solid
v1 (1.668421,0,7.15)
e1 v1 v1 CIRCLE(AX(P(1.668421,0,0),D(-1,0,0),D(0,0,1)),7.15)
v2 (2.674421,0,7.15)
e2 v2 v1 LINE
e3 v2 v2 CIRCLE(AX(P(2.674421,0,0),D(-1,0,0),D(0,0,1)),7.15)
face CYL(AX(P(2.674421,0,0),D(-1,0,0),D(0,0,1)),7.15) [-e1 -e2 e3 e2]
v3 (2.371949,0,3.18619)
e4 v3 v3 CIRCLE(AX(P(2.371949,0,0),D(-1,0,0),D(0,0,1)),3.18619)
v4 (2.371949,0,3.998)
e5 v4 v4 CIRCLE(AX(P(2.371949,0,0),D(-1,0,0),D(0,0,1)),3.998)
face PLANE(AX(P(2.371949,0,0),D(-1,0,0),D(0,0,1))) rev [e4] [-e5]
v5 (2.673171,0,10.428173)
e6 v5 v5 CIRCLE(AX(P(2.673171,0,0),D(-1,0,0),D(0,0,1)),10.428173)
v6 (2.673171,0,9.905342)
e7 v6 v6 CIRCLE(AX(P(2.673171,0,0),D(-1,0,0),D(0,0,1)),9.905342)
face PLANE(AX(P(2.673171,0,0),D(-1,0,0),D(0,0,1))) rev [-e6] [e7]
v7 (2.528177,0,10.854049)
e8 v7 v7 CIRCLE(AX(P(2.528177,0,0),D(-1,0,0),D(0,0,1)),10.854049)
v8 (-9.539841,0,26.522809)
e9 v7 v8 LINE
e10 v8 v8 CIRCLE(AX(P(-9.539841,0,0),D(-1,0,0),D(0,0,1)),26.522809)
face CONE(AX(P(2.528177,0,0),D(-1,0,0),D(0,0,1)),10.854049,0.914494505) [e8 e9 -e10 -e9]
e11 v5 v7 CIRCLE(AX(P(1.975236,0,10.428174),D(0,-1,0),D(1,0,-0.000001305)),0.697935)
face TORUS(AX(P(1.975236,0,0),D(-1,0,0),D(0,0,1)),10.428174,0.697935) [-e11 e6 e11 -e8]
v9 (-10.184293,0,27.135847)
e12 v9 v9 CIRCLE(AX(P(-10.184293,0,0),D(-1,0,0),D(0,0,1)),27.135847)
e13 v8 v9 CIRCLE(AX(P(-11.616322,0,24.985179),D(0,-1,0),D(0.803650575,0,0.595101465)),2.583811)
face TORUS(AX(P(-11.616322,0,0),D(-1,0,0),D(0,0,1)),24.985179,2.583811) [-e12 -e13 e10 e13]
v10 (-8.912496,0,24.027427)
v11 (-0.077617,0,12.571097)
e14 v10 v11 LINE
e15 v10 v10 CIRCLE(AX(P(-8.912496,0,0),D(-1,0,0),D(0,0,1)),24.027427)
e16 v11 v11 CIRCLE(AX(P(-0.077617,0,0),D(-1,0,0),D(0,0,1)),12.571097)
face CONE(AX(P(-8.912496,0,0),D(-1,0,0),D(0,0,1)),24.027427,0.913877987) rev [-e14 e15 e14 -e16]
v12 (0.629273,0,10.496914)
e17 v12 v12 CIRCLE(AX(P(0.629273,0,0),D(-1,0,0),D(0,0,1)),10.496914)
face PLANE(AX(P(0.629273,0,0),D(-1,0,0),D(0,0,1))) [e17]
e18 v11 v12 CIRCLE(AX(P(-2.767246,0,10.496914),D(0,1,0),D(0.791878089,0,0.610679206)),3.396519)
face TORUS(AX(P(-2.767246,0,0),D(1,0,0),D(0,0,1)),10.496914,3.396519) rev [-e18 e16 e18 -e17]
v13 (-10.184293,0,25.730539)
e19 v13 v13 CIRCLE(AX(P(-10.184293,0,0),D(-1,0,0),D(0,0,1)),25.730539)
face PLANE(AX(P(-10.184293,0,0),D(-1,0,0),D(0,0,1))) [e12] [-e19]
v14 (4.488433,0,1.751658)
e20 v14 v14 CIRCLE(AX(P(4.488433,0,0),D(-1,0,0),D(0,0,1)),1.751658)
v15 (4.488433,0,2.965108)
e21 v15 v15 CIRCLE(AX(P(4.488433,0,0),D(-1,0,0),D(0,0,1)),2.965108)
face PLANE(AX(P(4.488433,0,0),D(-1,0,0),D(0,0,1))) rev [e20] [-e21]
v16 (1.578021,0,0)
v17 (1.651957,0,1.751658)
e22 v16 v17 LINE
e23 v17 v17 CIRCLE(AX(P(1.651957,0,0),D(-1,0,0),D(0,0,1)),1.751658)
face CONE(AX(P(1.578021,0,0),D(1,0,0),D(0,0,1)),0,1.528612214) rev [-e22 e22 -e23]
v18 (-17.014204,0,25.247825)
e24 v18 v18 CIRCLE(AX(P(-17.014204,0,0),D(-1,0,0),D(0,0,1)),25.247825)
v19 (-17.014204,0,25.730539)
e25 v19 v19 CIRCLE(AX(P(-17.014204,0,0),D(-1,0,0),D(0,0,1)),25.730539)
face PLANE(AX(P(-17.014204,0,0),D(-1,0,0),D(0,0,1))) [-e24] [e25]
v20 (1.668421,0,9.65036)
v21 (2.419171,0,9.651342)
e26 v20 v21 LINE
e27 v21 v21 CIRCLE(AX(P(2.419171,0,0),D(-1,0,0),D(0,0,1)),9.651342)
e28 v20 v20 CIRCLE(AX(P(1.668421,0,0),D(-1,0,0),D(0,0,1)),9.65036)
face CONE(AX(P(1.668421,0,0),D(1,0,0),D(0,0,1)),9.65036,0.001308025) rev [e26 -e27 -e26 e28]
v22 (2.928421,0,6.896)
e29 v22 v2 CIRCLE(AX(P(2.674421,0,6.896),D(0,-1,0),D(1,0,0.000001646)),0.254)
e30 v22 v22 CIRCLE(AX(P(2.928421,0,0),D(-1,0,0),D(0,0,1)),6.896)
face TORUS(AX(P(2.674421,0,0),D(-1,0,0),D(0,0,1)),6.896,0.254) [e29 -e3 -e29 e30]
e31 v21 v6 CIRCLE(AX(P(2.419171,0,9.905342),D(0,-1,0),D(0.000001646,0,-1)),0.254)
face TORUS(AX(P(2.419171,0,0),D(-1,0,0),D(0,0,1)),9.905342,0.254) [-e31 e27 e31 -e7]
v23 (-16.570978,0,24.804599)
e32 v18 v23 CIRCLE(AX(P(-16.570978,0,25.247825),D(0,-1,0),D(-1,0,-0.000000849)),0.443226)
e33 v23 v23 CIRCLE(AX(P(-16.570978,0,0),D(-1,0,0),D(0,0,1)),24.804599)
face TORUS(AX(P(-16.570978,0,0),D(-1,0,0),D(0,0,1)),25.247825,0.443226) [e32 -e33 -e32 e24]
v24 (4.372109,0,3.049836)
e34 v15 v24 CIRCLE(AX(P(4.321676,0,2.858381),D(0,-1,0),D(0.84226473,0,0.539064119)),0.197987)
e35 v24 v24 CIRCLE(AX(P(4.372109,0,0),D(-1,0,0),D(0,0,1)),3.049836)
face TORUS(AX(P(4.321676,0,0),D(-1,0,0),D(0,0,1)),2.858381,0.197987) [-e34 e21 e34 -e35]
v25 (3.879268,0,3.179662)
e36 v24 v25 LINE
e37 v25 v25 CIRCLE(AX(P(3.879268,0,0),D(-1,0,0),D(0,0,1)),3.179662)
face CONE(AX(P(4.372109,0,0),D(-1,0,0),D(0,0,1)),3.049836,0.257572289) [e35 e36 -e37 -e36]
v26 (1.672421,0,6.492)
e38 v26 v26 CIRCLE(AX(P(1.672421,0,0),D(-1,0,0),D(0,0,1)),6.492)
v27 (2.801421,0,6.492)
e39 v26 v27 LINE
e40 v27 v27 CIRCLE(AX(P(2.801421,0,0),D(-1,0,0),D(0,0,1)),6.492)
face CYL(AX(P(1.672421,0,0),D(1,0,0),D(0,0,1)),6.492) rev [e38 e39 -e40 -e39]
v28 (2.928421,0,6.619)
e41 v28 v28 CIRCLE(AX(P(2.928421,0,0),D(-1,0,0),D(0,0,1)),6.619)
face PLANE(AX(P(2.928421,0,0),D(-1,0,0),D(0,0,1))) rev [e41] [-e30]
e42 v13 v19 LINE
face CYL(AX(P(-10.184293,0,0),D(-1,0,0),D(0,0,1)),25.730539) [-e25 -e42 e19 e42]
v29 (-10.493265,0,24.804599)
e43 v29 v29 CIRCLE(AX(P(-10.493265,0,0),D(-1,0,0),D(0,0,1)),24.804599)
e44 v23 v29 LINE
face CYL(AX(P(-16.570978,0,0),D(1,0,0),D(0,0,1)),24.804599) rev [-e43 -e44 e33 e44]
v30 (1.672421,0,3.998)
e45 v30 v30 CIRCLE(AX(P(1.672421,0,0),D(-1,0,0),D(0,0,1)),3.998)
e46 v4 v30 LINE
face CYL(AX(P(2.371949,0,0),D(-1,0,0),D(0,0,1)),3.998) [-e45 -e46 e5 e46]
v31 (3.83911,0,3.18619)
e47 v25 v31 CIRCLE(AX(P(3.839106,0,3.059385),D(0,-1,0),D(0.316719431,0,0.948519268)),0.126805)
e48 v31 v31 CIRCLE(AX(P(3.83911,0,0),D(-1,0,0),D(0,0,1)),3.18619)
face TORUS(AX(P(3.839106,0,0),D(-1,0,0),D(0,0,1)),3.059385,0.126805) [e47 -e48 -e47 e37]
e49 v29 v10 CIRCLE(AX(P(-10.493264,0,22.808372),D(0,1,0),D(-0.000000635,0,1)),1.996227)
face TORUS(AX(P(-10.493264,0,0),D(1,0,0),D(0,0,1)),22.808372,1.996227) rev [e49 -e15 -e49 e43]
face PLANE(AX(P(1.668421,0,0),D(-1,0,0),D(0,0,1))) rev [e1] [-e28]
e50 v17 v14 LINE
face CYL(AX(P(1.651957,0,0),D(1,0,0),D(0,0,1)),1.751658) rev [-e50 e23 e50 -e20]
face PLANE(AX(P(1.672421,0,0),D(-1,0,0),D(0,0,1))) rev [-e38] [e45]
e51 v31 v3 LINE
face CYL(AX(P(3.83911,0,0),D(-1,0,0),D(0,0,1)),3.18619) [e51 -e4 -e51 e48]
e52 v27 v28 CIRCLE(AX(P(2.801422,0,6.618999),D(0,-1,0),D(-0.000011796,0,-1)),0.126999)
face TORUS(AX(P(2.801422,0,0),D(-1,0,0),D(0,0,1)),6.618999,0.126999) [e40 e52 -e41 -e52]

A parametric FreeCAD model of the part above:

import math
import FreeCAD as App
import Part
import Sketcher
Q = App.Units.Quantity

doc = App.newDocument("Part")
body = doc.addObject("PartDesign::Body", "Body")

sketch1 = body.newObject("Sketcher::SketchObject", "Sketch")
sketch1.AttachmentSupport = (doc.getObject("XZ_Plane"), [""])
sketch1.MapMode = "FlatFace"
sketch1.addGeometry([
    Part.LineSegment(App.Vector(1.668, 9.65, 0), App.Vector(2.419, 9.651, 0)),
    Part.ArcOfCircle(Part.Circle(App.Vector(2.419, 9.905, 0), App.Vector(0, 0, 1), 0.254), math.radians(-90), math.radians(0)),
    Part.LineSegment(App.Vector(2.673, 9.905, 0), App.Vector(2.673, 10.428, 0)),
    Part.ArcOfCircle(Part.Circle(App.Vector(1.975, 10.428, 0), App.Vector(0, 0, 1), 0.698), math.radians(0), math.radians(38)),
    Part.LineSegment(App.Vector(2.528, 10.854, 0), App.Vector(-9.54, 26.523, 0)),
    Part.ArcOfCircle(Part.Circle(App.Vector(-11.616, 24.985, 0), App.Vector(0, 0, 1), 2.584), math.radians(36.52), math.radians(56.34)),
    Part.LineSegment(App.Vector(-10.184, 27.136, 0), App.Vector(-10.184, 25.731, 0)),
    Part.LineSegment(App.Vector(-10.184, 25.731, 0), App.Vector(-17.014, 25.731, 0)),
    Part.LineSegment(App.Vector(-17.014, 25.731, 0), App.Vector(-17.014, 25.248, 0)),
    Part.ArcOfCircle(Part.Circle(App.Vector(-16.571, 25.248, 0), App.Vector(0, 0, 1), 0.443), math.radians(-180), math.radians(-90)),
    Part.LineSegment(App.Vector(-16.571, 24.805, 0), App.Vector(-10.493, 24.805, 0)),
    Part.ArcOfCircle(Part.Circle(App.Vector(-10.493, 22.808, 0), App.Vector(0, 0, 1), 1.996), math.radians(38), math.radians(90)),
    Part.LineSegment(App.Vector(-8.912, 24.027, 0), App.Vector(-0.078, 12.571, 0)),
    Part.ArcOfCircle(Part.Circle(App.Vector(-2.767, 10.497, 0), App.Vector(0, 0, 1), 3.397), math.radians(0), math.radians(38)),
    Part.LineSegment(App.Vector(0.629, 10.497, 0), App.Vector(0.629, 0, 0)),
    Part.LineSegment(App.Vector(0.629, 0, 0), App.Vector(1.578, 0, 0)),
    Part.LineSegment(App.Vector(1.578, 0, 0), App.Vector(1.652, 1.752, 0)),
    Part.LineSegment(App.Vector(1.652, 1.752, 0), App.Vector(4.488, 1.752, 0)),
    Part.LineSegment(App.Vector(4.488, 1.752, 0), App.Vector(4.488, 2.965, 0)),
    Part.ArcOfCircle(Part.Circle(App.Vector(4.322, 2.858, 0), App.Vector(0, 0, 1), 0.198), math.radians(33), math.radians(75)),
    Part.LineSegment(App.Vector(4.372, 3.05, 0), App.Vector(3.879, 3.18, 0)),
    Part.ArcOfCircle(Part.Circle(App.Vector(3.839, 3.059, 0), App.Vector(0, 0, 1), 0.127), math.radians(71.54), math.radians(90)),
    Part.LineSegment(App.Vector(3.839, 3.186, 0), App.Vector(2.372, 3.186, 0)),
    Part.LineSegment(App.Vector(2.372, 3.186, 0), App.Vector(2.372, 3.998, 0)),
    Part.LineSegment(App.Vector(2.372, 3.998, 0), App.Vector(1.672, 3.998, 0)),
    Part.LineSegment(App.Vector(1.672, 3.998, 0), App.Vector(1.672, 6.492, 0)),
    Part.LineSegment(App.Vector(1.672, 6.492, 0), App.Vector(2.801, 6.492, 0)),
    Part.ArcOfCircle(Part.Circle(App.Vector(2.801, 6.619, 0), App.Vector(0, 0, 1), 0.127), math.radians(-90), math.radians(0)),
    Part.LineSegment(App.Vector(2.928, 6.619, 0), App.Vector(2.928, 6.896, 0)),
    Part.ArcOfCircle(Part.Circle(App.Vector(2.674, 6.896, 0), App.Vector(0, 0, 1), 0.254), math.radians(0), math.radians(90)),
    Part.LineSegment(App.Vector(2.674, 7.15, 0), App.Vector(1.668, 7.15, 0)),
    Part.LineSegment(App.Vector(1.668, 7.15, 0), App.Vector(1.668, 9.65, 0)),
], False)
sketch1.addConstraint([
    Sketcher.Constraint("Coincident", 0, 2, 1, 1),
    Sketcher.Constraint("Tangent", 1, 2, 2, 1),
    Sketcher.Constraint("Tangent", 2, 2, 3, 1),
    Sketcher.Constraint("Coincident", 3, 2, 4, 1),
    Sketcher.Constraint("Coincident", 4, 2, 5, 1),
    Sketcher.Constraint("Coincident", 5, 2, 6, 1),
    Sketcher.Constraint("Coincident", 6, 2, 7, 1),
    Sketcher.Constraint("Coincident", 7, 2, 8, 1),
    Sketcher.Constraint("Tangent", 8, 2, 9, 1),
    Sketcher.Constraint("Tangent", 9, 2, 10, 1),
    Sketcher.Constraint("Tangent", 10, 2, 11, 2),
    Sketcher.Constraint("Tangent", 11, 1, 12, 1),
    Sketcher.Constraint("Tangent", 12, 2, 13, 2),
    Sketcher.Constraint("Tangent", 13, 1, 14, 1),
    Sketcher.Constraint("Coincident", 14, 2, 15, 1),
    Sketcher.Constraint("Coincident", 15, 2, 16, 1),
    Sketcher.Constraint("Coincident", 16, 2, 17, 1),
    Sketcher.Constraint("Coincident", 17, 2, 18, 1),
    Sketcher.Constraint("Coincident", 18, 2, 19, 1),
    Sketcher.Constraint("Coincident", 19, 2, 20, 1),
    Sketcher.Constraint("Coincident", 20, 2, 21, 1),
    Sketcher.Constraint("Coincident", 21, 2, 22, 1),
    Sketcher.Constraint("Coincident", 22, 2, 23, 1),
    Sketcher.Constraint("Coincident", 23, 2, 24, 1),
    Sketcher.Constraint("Coincident", 24, 2, 25, 1),
    Sketcher.Constraint("Coincident", 25, 2, 26, 1),
    Sketcher.Constraint("Coincident", 26, 2, 27, 1),
    Sketcher.Constraint("Coincident", 27, 2, 28, 1),
    Sketcher.Constraint("Tangent", 28, 2, 29, 1),
    Sketcher.Constraint("Tangent", 29, 2, 30, 1),
    Sketcher.Constraint("Coincident", 30, 2, 31, 1),
    Sketcher.Constraint("Coincident", 31, 2, 0, 1),
    Sketcher.Constraint("Vertical", 2),
    Sketcher.Constraint("Vertical", 6),
    Sketcher.Constraint("Horizontal", 7),
    Sketcher.Constraint("Vertical", 8),
    Sketcher.Constraint("Horizontal", 10),
    Sketcher.Constraint("Vertical", 14),
    Sketcher.Constraint("Horizontal", 15),
    Sketcher.Constraint("Horizontal", 17),
    Sketcher.Constraint("Vertical", 18),
    Sketcher.Constraint("Horizontal", 22),
    Sketcher.Constraint("Vertical", 23),
    Sketcher.Constraint("Horizontal", 24),
    Sketcher.Constraint("Vertical", 25),
    Sketcher.Constraint("Horizontal", 26),
    Sketcher.Constraint("Vertical", 28),
    Sketcher.Constraint("Horizontal", 30),
    Sketcher.Constraint("Vertical", 31),
    Sketcher.Constraint("Equal", 1, 29),
    Sketcher.Constraint("PointOnObject", 14, 2, -1),
    Sketcher.Constraint("Vertical", 1, 3, 0, 2),
    Sketcher.Constraint("Vertical", 27, 3, 26, 2),
    Sketcher.Constraint("Radius", 1, Q("0.01 in")),
    Sketcher.Constraint("Radius", 27, Q("0.0049999 in")),
    Sketcher.Constraint("Radius", 5, 2.583811),
    Sketcher.Constraint("Radius", 13, 3.396519),
    Sketcher.Constraint("DistanceY", 26, 2, 27, 2, Q("0.005 in")),
    Sketcher.Constraint("DistanceX", 26, 1, 26, 2, 1.129),
    Sketcher.Constraint("DistanceX", 30, 2, 30, 1, 1.006),
    Sketcher.Constraint("DistanceY", 25, 1, 25, 2, 2.494),
    Sketcher.Constraint("DistanceY", 28, 1, 28, 2, 0.277),
    Sketcher.Constraint("Radius", 3, 0.697935),
    Sketcher.Constraint("Radius", 9, 0.443226),
    Sketcher.Constraint("Radius", 11, 1.996227),
    Sketcher.Constraint("Radius", 19, 0.197987),
    Sketcher.Constraint("Radius", 21, 0.126805),
    Sketcher.Constraint("DistanceX", 7, 2, 7, 1, 6.829911),
    Sketcher.Constraint("DistanceX", 22, 2, 22, 1, 1.467161),
    Sketcher.Constraint("DistanceY", 2, 1, 2, 2, 0.522831),
    Sketcher.Constraint("DistanceY", 18, 1, 18, 2, 1.21345),
    Sketcher.Constraint("DistanceY", 23, 1, 23, 2, 0.81181),
    Sketcher.Constraint("DistanceY", 31, 1, 31, 2, 2.50036),
    Sketcher.Constraint("DistanceY", -1, 1, 27, 3, 6.618999),
    Sketcher.Constraint("DistanceY", -1, 1, 9, 2, 24.804599),
    Sketcher.Constraint("DistanceX", 11, 3, 3, 3, 12.468499),
    Sketcher.Constraint("DistanceY", 3, 3, 11, 3, 12.380198),
    Sketcher.Constraint("DistanceY", 19, 3, 5, 3, 22.126799),
    Sketcher.Constraint("DistanceX", 13, 1, 0, 2, 1.789898),
    Sketcher.Constraint("DistanceX", 15, 2, 27, 3, 1.223401),
    Sketcher.Constraint("DistanceX", 21, 2, 19, 2, 0.532999),
    Sketcher.Constraint("Distance", 0, 0.750751),
    Sketcher.Constraint("Distance", 4, 19.777439),
    Sketcher.Constraint("DistanceX", 10, 1, 10, 2, 6.077713),
    Sketcher.Constraint("DistanceX", 17, 1, 17, 2, 2.836476),
    Sketcher.Constraint("DistanceX", 24, 2, 24, 1, 0.699528),
    Sketcher.Constraint("DistanceY", 6, 2, 6, 1, 1.405308),
    Sketcher.Constraint("DistanceY", 8, 2, 8, 1, 0.482714),
    Sketcher.Constraint("DistanceY", 14, 2, 14, 1, 10.496914),
    Sketcher.Constraint("DistanceX", -1, 1, 1, 3, 2.419171),
    Sketcher.Constraint("DistanceY", -1, 1, 5, 3, 24.985179),
    Sketcher.Constraint("DistanceY", -1, 1, 3, 2, 10.854049),
    Sketcher.Constraint("DistanceX", -1, 1, 20, 2, 3.879268),
    Sketcher.Constraint("DistanceY", -1, 1, 20, 2, 3.179662),
    Sketcher.Constraint("DistanceX", 3, 3, 19, 3, 2.34644),
    Sketcher.Constraint("DistanceX", 16, 2, 21, 3, 2.187149),
])
revolution = body.newObject("PartDesign::Revolution", "Revolution")
revolution.Profile = sketch1
revolution.ReferenceAxis = (sketch1, ["H_Axis"])
revolution.Angle = 360

doc.recompute()
